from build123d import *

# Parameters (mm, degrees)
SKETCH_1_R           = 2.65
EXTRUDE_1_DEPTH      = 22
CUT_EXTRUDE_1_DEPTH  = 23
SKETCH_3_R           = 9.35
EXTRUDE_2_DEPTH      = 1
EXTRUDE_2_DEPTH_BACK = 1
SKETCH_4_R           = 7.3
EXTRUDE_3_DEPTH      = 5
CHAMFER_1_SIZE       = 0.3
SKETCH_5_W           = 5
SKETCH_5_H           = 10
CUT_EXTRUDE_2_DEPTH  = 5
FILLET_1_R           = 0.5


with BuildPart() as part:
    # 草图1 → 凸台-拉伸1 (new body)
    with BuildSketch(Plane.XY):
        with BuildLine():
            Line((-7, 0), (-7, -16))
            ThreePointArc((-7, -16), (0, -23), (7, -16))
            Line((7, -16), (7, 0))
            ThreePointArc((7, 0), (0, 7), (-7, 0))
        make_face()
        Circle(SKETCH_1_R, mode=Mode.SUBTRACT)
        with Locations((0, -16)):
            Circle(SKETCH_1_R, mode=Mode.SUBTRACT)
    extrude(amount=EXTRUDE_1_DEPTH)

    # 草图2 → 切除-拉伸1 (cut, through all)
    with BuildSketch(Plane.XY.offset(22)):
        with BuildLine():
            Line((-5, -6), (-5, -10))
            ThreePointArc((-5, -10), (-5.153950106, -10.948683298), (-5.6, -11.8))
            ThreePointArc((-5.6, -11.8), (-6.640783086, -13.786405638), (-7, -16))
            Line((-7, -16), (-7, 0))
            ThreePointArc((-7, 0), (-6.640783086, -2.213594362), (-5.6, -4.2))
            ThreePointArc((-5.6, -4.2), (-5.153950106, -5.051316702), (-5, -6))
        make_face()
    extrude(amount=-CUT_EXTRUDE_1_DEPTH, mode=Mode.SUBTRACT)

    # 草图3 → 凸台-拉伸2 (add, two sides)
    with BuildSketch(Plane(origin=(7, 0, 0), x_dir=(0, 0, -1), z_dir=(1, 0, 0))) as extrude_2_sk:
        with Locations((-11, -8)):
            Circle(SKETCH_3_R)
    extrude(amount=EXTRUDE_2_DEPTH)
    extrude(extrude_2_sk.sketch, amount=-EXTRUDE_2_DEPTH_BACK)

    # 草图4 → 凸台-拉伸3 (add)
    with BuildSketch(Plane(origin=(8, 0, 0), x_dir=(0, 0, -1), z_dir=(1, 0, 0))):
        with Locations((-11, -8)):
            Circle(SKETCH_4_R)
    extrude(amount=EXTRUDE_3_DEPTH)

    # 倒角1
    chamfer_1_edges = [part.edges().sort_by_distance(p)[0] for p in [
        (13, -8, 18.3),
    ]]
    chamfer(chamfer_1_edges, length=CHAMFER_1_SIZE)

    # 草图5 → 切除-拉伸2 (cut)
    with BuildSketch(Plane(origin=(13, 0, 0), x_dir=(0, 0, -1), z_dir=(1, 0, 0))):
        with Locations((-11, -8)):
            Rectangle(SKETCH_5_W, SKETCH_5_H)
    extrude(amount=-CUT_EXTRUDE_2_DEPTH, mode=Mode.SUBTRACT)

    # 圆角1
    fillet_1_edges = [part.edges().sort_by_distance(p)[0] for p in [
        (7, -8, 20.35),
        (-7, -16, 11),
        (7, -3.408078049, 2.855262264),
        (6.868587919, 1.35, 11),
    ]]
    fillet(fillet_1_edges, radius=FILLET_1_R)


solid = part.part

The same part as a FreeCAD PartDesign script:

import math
import FreeCAD as App
import Part
import Sketcher


def edges_at(feature, points):
    """Names of the edges that pass closest to the given points."""
    edges = feature.Shape.Edges
    near = lambda p: min(range(len(edges)), key=lambda i: edges[i].distToShape(Part.Vertex(*p))[0])
    return sorted({f"Edge{near(p) + 1}" for p in points})


def add_polygon(sketch, points):
    """Adds a closed chain of lines whose ends are joined by coincident constraints."""
    first, n = sketch.GeometryCount, len(points)
    for a, b in zip(points, points[1:] + points[:1]):
        sketch.addGeometry(Part.LineSegment(App.Vector(*a, 0), App.Vector(*b, 0)), False)
    for i in range(n):
        sketch.addConstraint(Sketcher.Constraint("Coincident", first + i, 2, first + (i + 1) % n, 1))

doc = App.newDocument("Part")
params = doc.addObject("Spreadsheet::Sheet", "Params")
for row, (alias, value) in enumerate([
    ("sketch1_radius", "7 mm"),
    ("sketch1_diameter", "5.3 mm"),
    ("sketch1_height", "16 mm"),
    ("pad1_length", "22 mm"),
    ("sketch2_radius", "3 mm"),
    ("sketch2_radius2", "7 mm"),
    ("sketch2_height", "4 mm"),
    ("sketch2_height2", "16 mm"),
    ("sketch3_diameter", "18.7 mm"),
    ("pad2_length", "1 mm"),
    ("pad2_length2", "1 mm"),
    ("sketch4_diameter", "14.6 mm"),
    ("pad3_length", "5 mm"),
    ("chamfer_size", "0.3 mm"),
    ("sketch5_width", "10 mm"),
    ("sketch5_height", "5 mm"),
    ("pocket2_length", "5 mm"),
    ("fillet_radius", "0.5 mm"),
], start=1):
    params.set(f"A{row}", alias)
    params.set(f"B{row}", "=" + value)
    params.setAlias(f"B{row}", alias)

body = doc.addObject("PartDesign::Body", "Body")

sketch1 = body.newObject("Sketcher::SketchObject", "Sketch")
sketch1.AttachmentSupport = (doc.getObject("XY_Plane"), [""])
sketch1.MapMode = "FlatFace"
sketch1.addGeometry([
    Part.LineSegment(App.Vector(-7, 0, 0), App.Vector(-7, -16, 0)),
    Part.ArcOfCircle(Part.Circle(App.Vector(0, -16, 0), App.Vector(0, 0, 1), 7), math.radians(180), math.radians(360)),
    Part.LineSegment(App.Vector(7, -16, 0), App.Vector(7, 0, 0)),
    Part.ArcOfCircle(Part.Circle(App.Vector(0, 0, 0), App.Vector(0, 0, 1), 7), math.radians(0), math.radians(180)),
    Part.Circle(App.Vector(0, -16, 0), App.Vector(0, 0, 1), 2.6),
    Part.Circle(App.Vector(0, 0, 0), App.Vector(0, 0, 1), 2.6),
], False)
sketch1.addConstraint([
    Sketcher.Constraint("Tangent", 0, 2, 1, 1),
    Sketcher.Constraint("Tangent", 1, 2, 2, 1),
    Sketcher.Constraint("Tangent", 2, 2, 3, 1),
    Sketcher.Constraint("Tangent", 3, 2, 0, 1),
    Sketcher.Constraint("Vertical", 0),
    Sketcher.Constraint("Vertical", 2),
    Sketcher.Constraint("Coincident", 3, 3, -1, 1),
    Sketcher.Constraint("Coincident", 5, 3, -1, 1),
    Sketcher.Constraint("Coincident", 4, 3, 1, 3),
    Sketcher.Constraint("Equal", 4, 5),
    Sketcher.Constraint("Radius", 1, 7.0),
    Sketcher.Constraint("Diameter", 4, 5.3),
    Sketcher.Constraint("DistanceY", 0, 2, 0, 1, 16.0),
])
sketch1.setExpression("Constraints[10]", "Params.sketch1_radius")
sketch1.setExpression("Constraints[11]", "Params.sketch1_diameter")
sketch1.setExpression("Constraints[12]", "Params.sketch1_height")
pad1 = body.newObject("PartDesign::Pad", "Pad")
pad1.Profile = sketch1
pad1.setExpression("Length", "Params.pad1_length")

sketch2 = body.newObject("Sketcher::SketchObject", "Sketch001")
sketch2.AttachmentSupport = (doc.getObject("XY_Plane"), [""])
sketch2.MapMode = "FlatFace"
sketch2.AttachmentOffset = App.Placement(App.Vector(0, 0, 22), App.Rotation())
sketch2.addGeometry([
    Part.LineSegment(App.Vector(-5, -10, 0), App.Vector(-5, -6, 0)),
    Part.ArcOfCircle(Part.Circle(App.Vector(-8, -6, 0), App.Vector(0, 0, 1), 3), math.radians(0), math.radians(37)),
    Part.ArcOfCircle(Part.Circle(App.Vector(0, 0, 0), App.Vector(0, 0, 1), 7), math.radians(-180), math.radians(-143)),
    Part.LineSegment(App.Vector(-7, 0, 0), App.Vector(-7, -16, 0)),
    Part.ArcOfCircle(Part.Circle(App.Vector(0, -16, 0), App.Vector(0, 0, 1), 7), math.radians(143), math.radians(180)),
    Part.ArcOfCircle(Part.Circle(App.Vector(-8, -10, 0), App.Vector(0, 0, 1), 3), math.radians(-37), math.radians(0)),
], False)
sketch2.addConstraint([
    Sketcher.Constraint("Tangent", 0, 2, 1, 1),
    Sketcher.Constraint("Tangent", 1, 2, 2, 2),
    Sketcher.Constraint("Tangent", 2, 1, 3, 1),
    Sketcher.Constraint("Tangent", 3, 2, 4, 2),
    Sketcher.Constraint("Tangent", 4, 1, 5, 1),
    Sketcher.Constraint("Tangent", 5, 2, 0, 1),
    Sketcher.Constraint("Vertical", 0),
    Sketcher.Constraint("Vertical", 3),
    Sketcher.Constraint("Coincident", 2, 3, -1, 1),
    Sketcher.Constraint("Equal", 2, 4),
    Sketcher.Constraint("Equal", 1, 5),
    Sketcher.Constraint("Radius", 1, 3.0),
    Sketcher.Constraint("Radius", 2, 7.0),
    Sketcher.Constraint("DistanceY", 0, 1, 0, 2, 4.0),
    Sketcher.Constraint("DistanceY", 3, 2, 3, 1, 16.0),
])
sketch2.setExpression("Constraints[11]", "Params.sketch2_radius")
sketch2.setExpression("Constraints[12]", "Params.sketch2_radius2")
sketch2.setExpression("Constraints[13]", "Params.sketch2_height")
sketch2.setExpression("Constraints[14]", "Params.sketch2_height2")
pocket1 = body.newObject("PartDesign::Pocket", "Pocket")
pocket1.Profile = sketch2
pocket1.Type = "ThroughAll"

sketch3 = body.newObject("Sketcher::SketchObject", "Sketch002")
sketch3.AttachmentSupport = (doc.getObject("YZ_Plane"), [""])
sketch3.MapMode = "FlatFace"
sketch3.AttachmentOffset = App.Placement(App.Vector(0, 0, 7), App.Rotation())
sketch3.addGeometry(Part.Circle(App.Vector(-8, 11, 0), App.Vector(0, 0, 1), 9), False)
sketch3.addConstraint([
    Sketcher.Constraint("Diameter", 0, 18.7),
    Sketcher.Constraint("DistanceX", 0, 3, -1, 1, 8.0),
    Sketcher.Constraint("DistanceY", -1, 1, 0, 3, 11.0),
])
sketch3.setExpression("Constraints[0]", "Params.sketch3_diameter")
pad2 = body.newObject("PartDesign::Pad", "Pad001")
pad2.Profile = sketch3
pad2.Type = "TwoLengths"
pad2.setExpression("Length", "Params.pad2_length")
pad2.setExpression("Length2", "Params.pad2_length2")

sketch4 = body.newObject("Sketcher::SketchObject", "Sketch003")
sketch4.AttachmentSupport = (doc.getObject("YZ_Plane"), [""])
sketch4.MapMode = "FlatFace"
sketch4.AttachmentOffset = App.Placement(App.Vector(0, 0, 8), App.Rotation())
sketch4.addGeometry(Part.Circle(App.Vector(-8, 11, 0), App.Vector(0, 0, 1), 7), False)
sketch4.addConstraint([
    Sketcher.Constraint("Diameter", 0, 14.6),
    Sketcher.Constraint("DistanceX", 0, 3, -1, 1, 8.0),
    Sketcher.Constraint("DistanceY", -1, 1, 0, 3, 11.0),
])
sketch4.setExpression("Constraints[0]", "Params.sketch4_diameter")
pad3 = body.newObject("PartDesign::Pad", "Pad002")
pad3.Profile = sketch4
pad3.setExpression("Length", "Params.pad3_length")
doc.recompute()

chamfer = body.newObject("PartDesign::Chamfer", "Chamfer")
chamfer.Base = (pad3, edges_at(pad3, [(13, -8, 18.3)]))
chamfer.setExpression("Size", "Params.chamfer_size")

sketch5 = body.newObject("Sketcher::SketchObject", "Sketch004")
sketch5.AttachmentSupport = (doc.getObject("YZ_Plane"), [""])
sketch5.MapMode = "FlatFace"
sketch5.AttachmentOffset = App.Placement(App.Vector(0, 0, 13), App.Rotation())
add_polygon(sketch5, [(-3, 14), (-13, 14), (-13, 8), (-3, 8)])
sketch5.addConstraint([
    Sketcher.Constraint("Horizontal", 0),
    Sketcher.Constraint("Vertical", 1),
    Sketcher.Constraint("Horizontal", 2),
    Sketcher.Constraint("Vertical", 3),
    Sketcher.Constraint("DistanceX", 0, 2, 0, 1, 10.0),
    Sketcher.Constraint("DistanceY", 1, 2, 1, 1, 5.0),
    Sketcher.Constraint("DistanceX", 0, 2, -1, 1, 13.0),
    Sketcher.Constraint("DistanceY", -1, 1, 0, 2, 13.5),
])
sketch5.setExpression("Constraints[8]", "Params.sketch5_width")
sketch5.setExpression("Constraints[9]", "Params.sketch5_height")
pocket2 = body.newObject("PartDesign::Pocket", "Pocket001")
pocket2.Profile = sketch5
pocket2.setExpression("Length", "Params.pocket2_length")
doc.recompute()

fillet = body.newObject("PartDesign::Fillet", "Fillet")
fillet.Base = (pocket2, edges_at(pocket2, [
    (7, -8, 20.35),
    (-7, -16, 11),
    (7, -3.408, 2.855),
    (6.869, 1.35, 11),
]))
fillet.setExpression("Radius", "Params.fillet_radius")

doc.recompute()
